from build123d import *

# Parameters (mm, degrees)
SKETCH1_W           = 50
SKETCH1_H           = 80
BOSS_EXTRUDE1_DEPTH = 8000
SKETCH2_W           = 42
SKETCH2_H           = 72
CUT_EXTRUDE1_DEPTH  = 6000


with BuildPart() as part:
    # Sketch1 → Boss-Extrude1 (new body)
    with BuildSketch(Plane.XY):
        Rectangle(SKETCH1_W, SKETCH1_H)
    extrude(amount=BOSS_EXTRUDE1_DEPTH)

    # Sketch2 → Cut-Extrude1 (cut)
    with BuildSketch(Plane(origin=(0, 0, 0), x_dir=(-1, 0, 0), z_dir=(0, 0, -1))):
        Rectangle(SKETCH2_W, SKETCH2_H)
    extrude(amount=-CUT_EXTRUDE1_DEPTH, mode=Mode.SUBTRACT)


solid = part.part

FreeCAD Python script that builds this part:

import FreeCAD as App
import Part
import Sketcher

V = App.Vector

doc = App.newDocument("Part")
body = doc.addObject("PartDesign::Body", "Body")

# Sketch on XY plane
sketch1 = body.newObject("Sketcher::SketchObject", "Sketch")
sketch1.AttachmentSupport = (doc.getObject("XY_Plane"), [""])
sketch1.MapMode = "FlatFace"
sketch1.addGeometry([
    Part.LineSegment(V(-25, 40, 0), V(-25, -40, 0)),
    Part.LineSegment(V(-25, -40, 0), V(25, -40, 0)),
    Part.LineSegment(V(25, -40, 0), V(25, 40, 0)),
    Part.LineSegment(V(25, 40, 0), V(-25, 40, 0)),
], False)
sketch1.addConstraint([
    Sketcher.Constraint("Coincident", 0, 2, 1, 1),
    Sketcher.Constraint("Coincident", 1, 2, 2, 1),
    Sketcher.Constraint("Coincident", 2, 2, 3, 1),
    Sketcher.Constraint("Coincident", 3, 2, 0, 1),
    Sketcher.Constraint("Vertical", 0),
    Sketcher.Constraint("Horizontal", 1),
    Sketcher.Constraint("Vertical", 2),
    Sketcher.Constraint("Horizontal", 3),
    Sketcher.Constraint("Symmetric", 0, 2, 2, 2, -1, 1),
    Sketcher.Constraint("DistanceX", 1, 1, 1, 2, 50.0),
    Sketcher.Constraint("DistanceY", 0, 2, 0, 1, 80.0),
])
pad1 = body.newObject("PartDesign::Pad", "Pad")
pad1.Profile = sketch1
pad1.Length = 8000

# Sketch on XY plane
sketch2 = body.newObject("Sketcher::SketchObject", "Sketch001")
sketch2.AttachmentSupport = (doc.getObject("XY_Plane"), [""])
sketch2.MapMode = "FlatFace"
sketch2.addGeometry([
    Part.LineSegment(V(21, 36, 0), V(21, -36, 0)),
    Part.LineSegment(V(21, -36, 0), V(-21, -36, 0)),
    Part.LineSegment(V(-21, -36, 0), V(-21, 36, 0)),
    Part.LineSegment(V(-21, 36, 0), V(21, 36, 0)),
], False)
sketch2.addConstraint([
    Sketcher.Constraint("Coincident", 0, 2, 1, 1),
    Sketcher.Constraint("Coincident", 1, 2, 2, 1),
    Sketcher.Constraint("Coincident", 2, 2, 3, 1),
    Sketcher.Constraint("Coincident", 3, 2, 0, 1),
    Sketcher.Constraint("Vertical", 0),
    Sketcher.Constraint("Horizontal", 1),
    Sketcher.Constraint("Vertical", 2),
    Sketcher.Constraint("Horizontal", 3),
    Sketcher.Constraint("Symmetric", 0, 2, 2, 2, -1, 1),
    Sketcher.Constraint("DistanceX", 1, 2, 1, 1, 42.0),
    Sketcher.Constraint("DistanceY", 0, 2, 0, 1, 72.0),
])
pocket1 = body.newObject("PartDesign::Pocket", "Pocket")
pocket1.Profile = sketch2
pocket1.Length = 6000
pocket1.Reversed = True

doc.recompute()
